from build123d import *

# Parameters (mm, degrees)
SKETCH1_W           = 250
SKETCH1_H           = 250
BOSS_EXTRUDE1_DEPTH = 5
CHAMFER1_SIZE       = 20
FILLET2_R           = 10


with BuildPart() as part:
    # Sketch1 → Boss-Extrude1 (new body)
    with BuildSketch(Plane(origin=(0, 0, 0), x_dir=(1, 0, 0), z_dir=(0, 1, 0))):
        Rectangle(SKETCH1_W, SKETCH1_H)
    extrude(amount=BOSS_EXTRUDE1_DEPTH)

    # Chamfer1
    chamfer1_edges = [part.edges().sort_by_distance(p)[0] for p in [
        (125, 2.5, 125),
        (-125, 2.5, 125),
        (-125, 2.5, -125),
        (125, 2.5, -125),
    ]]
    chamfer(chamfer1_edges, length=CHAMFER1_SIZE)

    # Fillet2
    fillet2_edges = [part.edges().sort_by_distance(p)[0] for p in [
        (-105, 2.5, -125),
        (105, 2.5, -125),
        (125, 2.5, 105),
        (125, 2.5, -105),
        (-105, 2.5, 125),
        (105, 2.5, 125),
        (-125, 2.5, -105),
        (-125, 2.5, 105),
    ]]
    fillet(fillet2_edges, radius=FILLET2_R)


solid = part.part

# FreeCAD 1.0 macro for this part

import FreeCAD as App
import Part
import Sketcher
from FreeCAD import Vector


def edges_at(feature, points):
    """Names of the edges that pass closest to the given points."""
    edges = feature.Shape.Edges
    near = lambda p: min(range(len(edges)), key=lambda i: edges[i].distToShape(Part.Vertex(*p))[0])
    return sorted({f"Edge{near(p) + 1}" for p in points})


def add_polygon(sketch, points):
    """Adds a closed chain of lines whose ends are joined by coincident constraints."""
    first, n = sketch.GeometryCount, len(points)
    for a, b in zip(points, points[1:] + points[:1]):
        sketch.addGeometry(Part.LineSegment(App.Vector(*a, 0), App.Vector(*b, 0)), False)
    for i in range(n):
        sketch.addConstraint(Sketcher.Constraint("Coincident", first + i, 2, first + (i + 1) % n, 1))

doc = App.newDocument("Part")
params = doc.addObject("Spreadsheet::Sheet", "Params")
for row, (alias, value) in enumerate([
    ("sketch1_width", "250 mm"),
    ("pad1_length", "5 mm"),
    ("chamfer_size", "20 mm"),
    ("fillet_radius", "10 mm"),
], start=1):
    params.set(f"A{row}", alias)
    params.set(f"B{row}", "=" + value)
    params.setAlias(f"B{row}", alias)

body = doc.addObject("PartDesign::Body", "Body")

sketch1 = body.newObject("Sketcher::SketchObject", "Sketch")
sketch1.AttachmentSupport = (doc.getObject("XZ_Plane"), [""])
sketch1.MapMode = "FlatFace"
add_polygon(sketch1, [(-125, -125), (-125, 125), (125, 125), (125, -125)])
sketch1.addConstraint([
    Sketcher.Constraint("Vertical", 0),
    Sketcher.Constraint("Horizontal", 1),
    Sketcher.Constraint("Vertical", 2),
    Sketcher.Constraint("Horizontal", 3),
    Sketcher.Constraint("Symmetric", 0, 2, 2, 2, -1, 1),
    Sketcher.Constraint("Equal", 3, 0),
    Sketcher.Constraint("DistanceX", 1, 1, 1, 2, 250.0),
])
sketch1.setExpression("Constraints[10]", "Params.sketch1_width")
pad1 = body.newObject("PartDesign::Pad", "Pad")
pad1.Profile = sketch1
pad1.setExpression("Length", "Params.pad1_length")
pad1.Reversed = True
doc.recompute()

chamfer = body.newObject("PartDesign::Chamfer", "Chamfer")
chamfer.Base = (pad1, edges_at(pad1, [
    (125, 2.5, 125),
    (-125, 2.5, 125),
    (-125, 2.5, -125),
    (125, 2.5, -125),
]))
chamfer.setExpression("Size", "Params.chamfer_size")
doc.recompute()

fillet = body.newObject("PartDesign::Fillet", "Fillet")
fillet.Base = (chamfer, edges_at(chamfer, [
    (-105, 2.5, -125),
    (105, 2.5, -125),
    (125, 2.5, 105),
    (125, 2.5, -105),
    (-105, 2.5, 125),
    (105, 2.5, 125),
    (-125, 2.5, -105),
    (-125, 2.5, 105),
]))
fillet.setExpression("Radius", "Params.fillet_radius")

doc.recompute()
